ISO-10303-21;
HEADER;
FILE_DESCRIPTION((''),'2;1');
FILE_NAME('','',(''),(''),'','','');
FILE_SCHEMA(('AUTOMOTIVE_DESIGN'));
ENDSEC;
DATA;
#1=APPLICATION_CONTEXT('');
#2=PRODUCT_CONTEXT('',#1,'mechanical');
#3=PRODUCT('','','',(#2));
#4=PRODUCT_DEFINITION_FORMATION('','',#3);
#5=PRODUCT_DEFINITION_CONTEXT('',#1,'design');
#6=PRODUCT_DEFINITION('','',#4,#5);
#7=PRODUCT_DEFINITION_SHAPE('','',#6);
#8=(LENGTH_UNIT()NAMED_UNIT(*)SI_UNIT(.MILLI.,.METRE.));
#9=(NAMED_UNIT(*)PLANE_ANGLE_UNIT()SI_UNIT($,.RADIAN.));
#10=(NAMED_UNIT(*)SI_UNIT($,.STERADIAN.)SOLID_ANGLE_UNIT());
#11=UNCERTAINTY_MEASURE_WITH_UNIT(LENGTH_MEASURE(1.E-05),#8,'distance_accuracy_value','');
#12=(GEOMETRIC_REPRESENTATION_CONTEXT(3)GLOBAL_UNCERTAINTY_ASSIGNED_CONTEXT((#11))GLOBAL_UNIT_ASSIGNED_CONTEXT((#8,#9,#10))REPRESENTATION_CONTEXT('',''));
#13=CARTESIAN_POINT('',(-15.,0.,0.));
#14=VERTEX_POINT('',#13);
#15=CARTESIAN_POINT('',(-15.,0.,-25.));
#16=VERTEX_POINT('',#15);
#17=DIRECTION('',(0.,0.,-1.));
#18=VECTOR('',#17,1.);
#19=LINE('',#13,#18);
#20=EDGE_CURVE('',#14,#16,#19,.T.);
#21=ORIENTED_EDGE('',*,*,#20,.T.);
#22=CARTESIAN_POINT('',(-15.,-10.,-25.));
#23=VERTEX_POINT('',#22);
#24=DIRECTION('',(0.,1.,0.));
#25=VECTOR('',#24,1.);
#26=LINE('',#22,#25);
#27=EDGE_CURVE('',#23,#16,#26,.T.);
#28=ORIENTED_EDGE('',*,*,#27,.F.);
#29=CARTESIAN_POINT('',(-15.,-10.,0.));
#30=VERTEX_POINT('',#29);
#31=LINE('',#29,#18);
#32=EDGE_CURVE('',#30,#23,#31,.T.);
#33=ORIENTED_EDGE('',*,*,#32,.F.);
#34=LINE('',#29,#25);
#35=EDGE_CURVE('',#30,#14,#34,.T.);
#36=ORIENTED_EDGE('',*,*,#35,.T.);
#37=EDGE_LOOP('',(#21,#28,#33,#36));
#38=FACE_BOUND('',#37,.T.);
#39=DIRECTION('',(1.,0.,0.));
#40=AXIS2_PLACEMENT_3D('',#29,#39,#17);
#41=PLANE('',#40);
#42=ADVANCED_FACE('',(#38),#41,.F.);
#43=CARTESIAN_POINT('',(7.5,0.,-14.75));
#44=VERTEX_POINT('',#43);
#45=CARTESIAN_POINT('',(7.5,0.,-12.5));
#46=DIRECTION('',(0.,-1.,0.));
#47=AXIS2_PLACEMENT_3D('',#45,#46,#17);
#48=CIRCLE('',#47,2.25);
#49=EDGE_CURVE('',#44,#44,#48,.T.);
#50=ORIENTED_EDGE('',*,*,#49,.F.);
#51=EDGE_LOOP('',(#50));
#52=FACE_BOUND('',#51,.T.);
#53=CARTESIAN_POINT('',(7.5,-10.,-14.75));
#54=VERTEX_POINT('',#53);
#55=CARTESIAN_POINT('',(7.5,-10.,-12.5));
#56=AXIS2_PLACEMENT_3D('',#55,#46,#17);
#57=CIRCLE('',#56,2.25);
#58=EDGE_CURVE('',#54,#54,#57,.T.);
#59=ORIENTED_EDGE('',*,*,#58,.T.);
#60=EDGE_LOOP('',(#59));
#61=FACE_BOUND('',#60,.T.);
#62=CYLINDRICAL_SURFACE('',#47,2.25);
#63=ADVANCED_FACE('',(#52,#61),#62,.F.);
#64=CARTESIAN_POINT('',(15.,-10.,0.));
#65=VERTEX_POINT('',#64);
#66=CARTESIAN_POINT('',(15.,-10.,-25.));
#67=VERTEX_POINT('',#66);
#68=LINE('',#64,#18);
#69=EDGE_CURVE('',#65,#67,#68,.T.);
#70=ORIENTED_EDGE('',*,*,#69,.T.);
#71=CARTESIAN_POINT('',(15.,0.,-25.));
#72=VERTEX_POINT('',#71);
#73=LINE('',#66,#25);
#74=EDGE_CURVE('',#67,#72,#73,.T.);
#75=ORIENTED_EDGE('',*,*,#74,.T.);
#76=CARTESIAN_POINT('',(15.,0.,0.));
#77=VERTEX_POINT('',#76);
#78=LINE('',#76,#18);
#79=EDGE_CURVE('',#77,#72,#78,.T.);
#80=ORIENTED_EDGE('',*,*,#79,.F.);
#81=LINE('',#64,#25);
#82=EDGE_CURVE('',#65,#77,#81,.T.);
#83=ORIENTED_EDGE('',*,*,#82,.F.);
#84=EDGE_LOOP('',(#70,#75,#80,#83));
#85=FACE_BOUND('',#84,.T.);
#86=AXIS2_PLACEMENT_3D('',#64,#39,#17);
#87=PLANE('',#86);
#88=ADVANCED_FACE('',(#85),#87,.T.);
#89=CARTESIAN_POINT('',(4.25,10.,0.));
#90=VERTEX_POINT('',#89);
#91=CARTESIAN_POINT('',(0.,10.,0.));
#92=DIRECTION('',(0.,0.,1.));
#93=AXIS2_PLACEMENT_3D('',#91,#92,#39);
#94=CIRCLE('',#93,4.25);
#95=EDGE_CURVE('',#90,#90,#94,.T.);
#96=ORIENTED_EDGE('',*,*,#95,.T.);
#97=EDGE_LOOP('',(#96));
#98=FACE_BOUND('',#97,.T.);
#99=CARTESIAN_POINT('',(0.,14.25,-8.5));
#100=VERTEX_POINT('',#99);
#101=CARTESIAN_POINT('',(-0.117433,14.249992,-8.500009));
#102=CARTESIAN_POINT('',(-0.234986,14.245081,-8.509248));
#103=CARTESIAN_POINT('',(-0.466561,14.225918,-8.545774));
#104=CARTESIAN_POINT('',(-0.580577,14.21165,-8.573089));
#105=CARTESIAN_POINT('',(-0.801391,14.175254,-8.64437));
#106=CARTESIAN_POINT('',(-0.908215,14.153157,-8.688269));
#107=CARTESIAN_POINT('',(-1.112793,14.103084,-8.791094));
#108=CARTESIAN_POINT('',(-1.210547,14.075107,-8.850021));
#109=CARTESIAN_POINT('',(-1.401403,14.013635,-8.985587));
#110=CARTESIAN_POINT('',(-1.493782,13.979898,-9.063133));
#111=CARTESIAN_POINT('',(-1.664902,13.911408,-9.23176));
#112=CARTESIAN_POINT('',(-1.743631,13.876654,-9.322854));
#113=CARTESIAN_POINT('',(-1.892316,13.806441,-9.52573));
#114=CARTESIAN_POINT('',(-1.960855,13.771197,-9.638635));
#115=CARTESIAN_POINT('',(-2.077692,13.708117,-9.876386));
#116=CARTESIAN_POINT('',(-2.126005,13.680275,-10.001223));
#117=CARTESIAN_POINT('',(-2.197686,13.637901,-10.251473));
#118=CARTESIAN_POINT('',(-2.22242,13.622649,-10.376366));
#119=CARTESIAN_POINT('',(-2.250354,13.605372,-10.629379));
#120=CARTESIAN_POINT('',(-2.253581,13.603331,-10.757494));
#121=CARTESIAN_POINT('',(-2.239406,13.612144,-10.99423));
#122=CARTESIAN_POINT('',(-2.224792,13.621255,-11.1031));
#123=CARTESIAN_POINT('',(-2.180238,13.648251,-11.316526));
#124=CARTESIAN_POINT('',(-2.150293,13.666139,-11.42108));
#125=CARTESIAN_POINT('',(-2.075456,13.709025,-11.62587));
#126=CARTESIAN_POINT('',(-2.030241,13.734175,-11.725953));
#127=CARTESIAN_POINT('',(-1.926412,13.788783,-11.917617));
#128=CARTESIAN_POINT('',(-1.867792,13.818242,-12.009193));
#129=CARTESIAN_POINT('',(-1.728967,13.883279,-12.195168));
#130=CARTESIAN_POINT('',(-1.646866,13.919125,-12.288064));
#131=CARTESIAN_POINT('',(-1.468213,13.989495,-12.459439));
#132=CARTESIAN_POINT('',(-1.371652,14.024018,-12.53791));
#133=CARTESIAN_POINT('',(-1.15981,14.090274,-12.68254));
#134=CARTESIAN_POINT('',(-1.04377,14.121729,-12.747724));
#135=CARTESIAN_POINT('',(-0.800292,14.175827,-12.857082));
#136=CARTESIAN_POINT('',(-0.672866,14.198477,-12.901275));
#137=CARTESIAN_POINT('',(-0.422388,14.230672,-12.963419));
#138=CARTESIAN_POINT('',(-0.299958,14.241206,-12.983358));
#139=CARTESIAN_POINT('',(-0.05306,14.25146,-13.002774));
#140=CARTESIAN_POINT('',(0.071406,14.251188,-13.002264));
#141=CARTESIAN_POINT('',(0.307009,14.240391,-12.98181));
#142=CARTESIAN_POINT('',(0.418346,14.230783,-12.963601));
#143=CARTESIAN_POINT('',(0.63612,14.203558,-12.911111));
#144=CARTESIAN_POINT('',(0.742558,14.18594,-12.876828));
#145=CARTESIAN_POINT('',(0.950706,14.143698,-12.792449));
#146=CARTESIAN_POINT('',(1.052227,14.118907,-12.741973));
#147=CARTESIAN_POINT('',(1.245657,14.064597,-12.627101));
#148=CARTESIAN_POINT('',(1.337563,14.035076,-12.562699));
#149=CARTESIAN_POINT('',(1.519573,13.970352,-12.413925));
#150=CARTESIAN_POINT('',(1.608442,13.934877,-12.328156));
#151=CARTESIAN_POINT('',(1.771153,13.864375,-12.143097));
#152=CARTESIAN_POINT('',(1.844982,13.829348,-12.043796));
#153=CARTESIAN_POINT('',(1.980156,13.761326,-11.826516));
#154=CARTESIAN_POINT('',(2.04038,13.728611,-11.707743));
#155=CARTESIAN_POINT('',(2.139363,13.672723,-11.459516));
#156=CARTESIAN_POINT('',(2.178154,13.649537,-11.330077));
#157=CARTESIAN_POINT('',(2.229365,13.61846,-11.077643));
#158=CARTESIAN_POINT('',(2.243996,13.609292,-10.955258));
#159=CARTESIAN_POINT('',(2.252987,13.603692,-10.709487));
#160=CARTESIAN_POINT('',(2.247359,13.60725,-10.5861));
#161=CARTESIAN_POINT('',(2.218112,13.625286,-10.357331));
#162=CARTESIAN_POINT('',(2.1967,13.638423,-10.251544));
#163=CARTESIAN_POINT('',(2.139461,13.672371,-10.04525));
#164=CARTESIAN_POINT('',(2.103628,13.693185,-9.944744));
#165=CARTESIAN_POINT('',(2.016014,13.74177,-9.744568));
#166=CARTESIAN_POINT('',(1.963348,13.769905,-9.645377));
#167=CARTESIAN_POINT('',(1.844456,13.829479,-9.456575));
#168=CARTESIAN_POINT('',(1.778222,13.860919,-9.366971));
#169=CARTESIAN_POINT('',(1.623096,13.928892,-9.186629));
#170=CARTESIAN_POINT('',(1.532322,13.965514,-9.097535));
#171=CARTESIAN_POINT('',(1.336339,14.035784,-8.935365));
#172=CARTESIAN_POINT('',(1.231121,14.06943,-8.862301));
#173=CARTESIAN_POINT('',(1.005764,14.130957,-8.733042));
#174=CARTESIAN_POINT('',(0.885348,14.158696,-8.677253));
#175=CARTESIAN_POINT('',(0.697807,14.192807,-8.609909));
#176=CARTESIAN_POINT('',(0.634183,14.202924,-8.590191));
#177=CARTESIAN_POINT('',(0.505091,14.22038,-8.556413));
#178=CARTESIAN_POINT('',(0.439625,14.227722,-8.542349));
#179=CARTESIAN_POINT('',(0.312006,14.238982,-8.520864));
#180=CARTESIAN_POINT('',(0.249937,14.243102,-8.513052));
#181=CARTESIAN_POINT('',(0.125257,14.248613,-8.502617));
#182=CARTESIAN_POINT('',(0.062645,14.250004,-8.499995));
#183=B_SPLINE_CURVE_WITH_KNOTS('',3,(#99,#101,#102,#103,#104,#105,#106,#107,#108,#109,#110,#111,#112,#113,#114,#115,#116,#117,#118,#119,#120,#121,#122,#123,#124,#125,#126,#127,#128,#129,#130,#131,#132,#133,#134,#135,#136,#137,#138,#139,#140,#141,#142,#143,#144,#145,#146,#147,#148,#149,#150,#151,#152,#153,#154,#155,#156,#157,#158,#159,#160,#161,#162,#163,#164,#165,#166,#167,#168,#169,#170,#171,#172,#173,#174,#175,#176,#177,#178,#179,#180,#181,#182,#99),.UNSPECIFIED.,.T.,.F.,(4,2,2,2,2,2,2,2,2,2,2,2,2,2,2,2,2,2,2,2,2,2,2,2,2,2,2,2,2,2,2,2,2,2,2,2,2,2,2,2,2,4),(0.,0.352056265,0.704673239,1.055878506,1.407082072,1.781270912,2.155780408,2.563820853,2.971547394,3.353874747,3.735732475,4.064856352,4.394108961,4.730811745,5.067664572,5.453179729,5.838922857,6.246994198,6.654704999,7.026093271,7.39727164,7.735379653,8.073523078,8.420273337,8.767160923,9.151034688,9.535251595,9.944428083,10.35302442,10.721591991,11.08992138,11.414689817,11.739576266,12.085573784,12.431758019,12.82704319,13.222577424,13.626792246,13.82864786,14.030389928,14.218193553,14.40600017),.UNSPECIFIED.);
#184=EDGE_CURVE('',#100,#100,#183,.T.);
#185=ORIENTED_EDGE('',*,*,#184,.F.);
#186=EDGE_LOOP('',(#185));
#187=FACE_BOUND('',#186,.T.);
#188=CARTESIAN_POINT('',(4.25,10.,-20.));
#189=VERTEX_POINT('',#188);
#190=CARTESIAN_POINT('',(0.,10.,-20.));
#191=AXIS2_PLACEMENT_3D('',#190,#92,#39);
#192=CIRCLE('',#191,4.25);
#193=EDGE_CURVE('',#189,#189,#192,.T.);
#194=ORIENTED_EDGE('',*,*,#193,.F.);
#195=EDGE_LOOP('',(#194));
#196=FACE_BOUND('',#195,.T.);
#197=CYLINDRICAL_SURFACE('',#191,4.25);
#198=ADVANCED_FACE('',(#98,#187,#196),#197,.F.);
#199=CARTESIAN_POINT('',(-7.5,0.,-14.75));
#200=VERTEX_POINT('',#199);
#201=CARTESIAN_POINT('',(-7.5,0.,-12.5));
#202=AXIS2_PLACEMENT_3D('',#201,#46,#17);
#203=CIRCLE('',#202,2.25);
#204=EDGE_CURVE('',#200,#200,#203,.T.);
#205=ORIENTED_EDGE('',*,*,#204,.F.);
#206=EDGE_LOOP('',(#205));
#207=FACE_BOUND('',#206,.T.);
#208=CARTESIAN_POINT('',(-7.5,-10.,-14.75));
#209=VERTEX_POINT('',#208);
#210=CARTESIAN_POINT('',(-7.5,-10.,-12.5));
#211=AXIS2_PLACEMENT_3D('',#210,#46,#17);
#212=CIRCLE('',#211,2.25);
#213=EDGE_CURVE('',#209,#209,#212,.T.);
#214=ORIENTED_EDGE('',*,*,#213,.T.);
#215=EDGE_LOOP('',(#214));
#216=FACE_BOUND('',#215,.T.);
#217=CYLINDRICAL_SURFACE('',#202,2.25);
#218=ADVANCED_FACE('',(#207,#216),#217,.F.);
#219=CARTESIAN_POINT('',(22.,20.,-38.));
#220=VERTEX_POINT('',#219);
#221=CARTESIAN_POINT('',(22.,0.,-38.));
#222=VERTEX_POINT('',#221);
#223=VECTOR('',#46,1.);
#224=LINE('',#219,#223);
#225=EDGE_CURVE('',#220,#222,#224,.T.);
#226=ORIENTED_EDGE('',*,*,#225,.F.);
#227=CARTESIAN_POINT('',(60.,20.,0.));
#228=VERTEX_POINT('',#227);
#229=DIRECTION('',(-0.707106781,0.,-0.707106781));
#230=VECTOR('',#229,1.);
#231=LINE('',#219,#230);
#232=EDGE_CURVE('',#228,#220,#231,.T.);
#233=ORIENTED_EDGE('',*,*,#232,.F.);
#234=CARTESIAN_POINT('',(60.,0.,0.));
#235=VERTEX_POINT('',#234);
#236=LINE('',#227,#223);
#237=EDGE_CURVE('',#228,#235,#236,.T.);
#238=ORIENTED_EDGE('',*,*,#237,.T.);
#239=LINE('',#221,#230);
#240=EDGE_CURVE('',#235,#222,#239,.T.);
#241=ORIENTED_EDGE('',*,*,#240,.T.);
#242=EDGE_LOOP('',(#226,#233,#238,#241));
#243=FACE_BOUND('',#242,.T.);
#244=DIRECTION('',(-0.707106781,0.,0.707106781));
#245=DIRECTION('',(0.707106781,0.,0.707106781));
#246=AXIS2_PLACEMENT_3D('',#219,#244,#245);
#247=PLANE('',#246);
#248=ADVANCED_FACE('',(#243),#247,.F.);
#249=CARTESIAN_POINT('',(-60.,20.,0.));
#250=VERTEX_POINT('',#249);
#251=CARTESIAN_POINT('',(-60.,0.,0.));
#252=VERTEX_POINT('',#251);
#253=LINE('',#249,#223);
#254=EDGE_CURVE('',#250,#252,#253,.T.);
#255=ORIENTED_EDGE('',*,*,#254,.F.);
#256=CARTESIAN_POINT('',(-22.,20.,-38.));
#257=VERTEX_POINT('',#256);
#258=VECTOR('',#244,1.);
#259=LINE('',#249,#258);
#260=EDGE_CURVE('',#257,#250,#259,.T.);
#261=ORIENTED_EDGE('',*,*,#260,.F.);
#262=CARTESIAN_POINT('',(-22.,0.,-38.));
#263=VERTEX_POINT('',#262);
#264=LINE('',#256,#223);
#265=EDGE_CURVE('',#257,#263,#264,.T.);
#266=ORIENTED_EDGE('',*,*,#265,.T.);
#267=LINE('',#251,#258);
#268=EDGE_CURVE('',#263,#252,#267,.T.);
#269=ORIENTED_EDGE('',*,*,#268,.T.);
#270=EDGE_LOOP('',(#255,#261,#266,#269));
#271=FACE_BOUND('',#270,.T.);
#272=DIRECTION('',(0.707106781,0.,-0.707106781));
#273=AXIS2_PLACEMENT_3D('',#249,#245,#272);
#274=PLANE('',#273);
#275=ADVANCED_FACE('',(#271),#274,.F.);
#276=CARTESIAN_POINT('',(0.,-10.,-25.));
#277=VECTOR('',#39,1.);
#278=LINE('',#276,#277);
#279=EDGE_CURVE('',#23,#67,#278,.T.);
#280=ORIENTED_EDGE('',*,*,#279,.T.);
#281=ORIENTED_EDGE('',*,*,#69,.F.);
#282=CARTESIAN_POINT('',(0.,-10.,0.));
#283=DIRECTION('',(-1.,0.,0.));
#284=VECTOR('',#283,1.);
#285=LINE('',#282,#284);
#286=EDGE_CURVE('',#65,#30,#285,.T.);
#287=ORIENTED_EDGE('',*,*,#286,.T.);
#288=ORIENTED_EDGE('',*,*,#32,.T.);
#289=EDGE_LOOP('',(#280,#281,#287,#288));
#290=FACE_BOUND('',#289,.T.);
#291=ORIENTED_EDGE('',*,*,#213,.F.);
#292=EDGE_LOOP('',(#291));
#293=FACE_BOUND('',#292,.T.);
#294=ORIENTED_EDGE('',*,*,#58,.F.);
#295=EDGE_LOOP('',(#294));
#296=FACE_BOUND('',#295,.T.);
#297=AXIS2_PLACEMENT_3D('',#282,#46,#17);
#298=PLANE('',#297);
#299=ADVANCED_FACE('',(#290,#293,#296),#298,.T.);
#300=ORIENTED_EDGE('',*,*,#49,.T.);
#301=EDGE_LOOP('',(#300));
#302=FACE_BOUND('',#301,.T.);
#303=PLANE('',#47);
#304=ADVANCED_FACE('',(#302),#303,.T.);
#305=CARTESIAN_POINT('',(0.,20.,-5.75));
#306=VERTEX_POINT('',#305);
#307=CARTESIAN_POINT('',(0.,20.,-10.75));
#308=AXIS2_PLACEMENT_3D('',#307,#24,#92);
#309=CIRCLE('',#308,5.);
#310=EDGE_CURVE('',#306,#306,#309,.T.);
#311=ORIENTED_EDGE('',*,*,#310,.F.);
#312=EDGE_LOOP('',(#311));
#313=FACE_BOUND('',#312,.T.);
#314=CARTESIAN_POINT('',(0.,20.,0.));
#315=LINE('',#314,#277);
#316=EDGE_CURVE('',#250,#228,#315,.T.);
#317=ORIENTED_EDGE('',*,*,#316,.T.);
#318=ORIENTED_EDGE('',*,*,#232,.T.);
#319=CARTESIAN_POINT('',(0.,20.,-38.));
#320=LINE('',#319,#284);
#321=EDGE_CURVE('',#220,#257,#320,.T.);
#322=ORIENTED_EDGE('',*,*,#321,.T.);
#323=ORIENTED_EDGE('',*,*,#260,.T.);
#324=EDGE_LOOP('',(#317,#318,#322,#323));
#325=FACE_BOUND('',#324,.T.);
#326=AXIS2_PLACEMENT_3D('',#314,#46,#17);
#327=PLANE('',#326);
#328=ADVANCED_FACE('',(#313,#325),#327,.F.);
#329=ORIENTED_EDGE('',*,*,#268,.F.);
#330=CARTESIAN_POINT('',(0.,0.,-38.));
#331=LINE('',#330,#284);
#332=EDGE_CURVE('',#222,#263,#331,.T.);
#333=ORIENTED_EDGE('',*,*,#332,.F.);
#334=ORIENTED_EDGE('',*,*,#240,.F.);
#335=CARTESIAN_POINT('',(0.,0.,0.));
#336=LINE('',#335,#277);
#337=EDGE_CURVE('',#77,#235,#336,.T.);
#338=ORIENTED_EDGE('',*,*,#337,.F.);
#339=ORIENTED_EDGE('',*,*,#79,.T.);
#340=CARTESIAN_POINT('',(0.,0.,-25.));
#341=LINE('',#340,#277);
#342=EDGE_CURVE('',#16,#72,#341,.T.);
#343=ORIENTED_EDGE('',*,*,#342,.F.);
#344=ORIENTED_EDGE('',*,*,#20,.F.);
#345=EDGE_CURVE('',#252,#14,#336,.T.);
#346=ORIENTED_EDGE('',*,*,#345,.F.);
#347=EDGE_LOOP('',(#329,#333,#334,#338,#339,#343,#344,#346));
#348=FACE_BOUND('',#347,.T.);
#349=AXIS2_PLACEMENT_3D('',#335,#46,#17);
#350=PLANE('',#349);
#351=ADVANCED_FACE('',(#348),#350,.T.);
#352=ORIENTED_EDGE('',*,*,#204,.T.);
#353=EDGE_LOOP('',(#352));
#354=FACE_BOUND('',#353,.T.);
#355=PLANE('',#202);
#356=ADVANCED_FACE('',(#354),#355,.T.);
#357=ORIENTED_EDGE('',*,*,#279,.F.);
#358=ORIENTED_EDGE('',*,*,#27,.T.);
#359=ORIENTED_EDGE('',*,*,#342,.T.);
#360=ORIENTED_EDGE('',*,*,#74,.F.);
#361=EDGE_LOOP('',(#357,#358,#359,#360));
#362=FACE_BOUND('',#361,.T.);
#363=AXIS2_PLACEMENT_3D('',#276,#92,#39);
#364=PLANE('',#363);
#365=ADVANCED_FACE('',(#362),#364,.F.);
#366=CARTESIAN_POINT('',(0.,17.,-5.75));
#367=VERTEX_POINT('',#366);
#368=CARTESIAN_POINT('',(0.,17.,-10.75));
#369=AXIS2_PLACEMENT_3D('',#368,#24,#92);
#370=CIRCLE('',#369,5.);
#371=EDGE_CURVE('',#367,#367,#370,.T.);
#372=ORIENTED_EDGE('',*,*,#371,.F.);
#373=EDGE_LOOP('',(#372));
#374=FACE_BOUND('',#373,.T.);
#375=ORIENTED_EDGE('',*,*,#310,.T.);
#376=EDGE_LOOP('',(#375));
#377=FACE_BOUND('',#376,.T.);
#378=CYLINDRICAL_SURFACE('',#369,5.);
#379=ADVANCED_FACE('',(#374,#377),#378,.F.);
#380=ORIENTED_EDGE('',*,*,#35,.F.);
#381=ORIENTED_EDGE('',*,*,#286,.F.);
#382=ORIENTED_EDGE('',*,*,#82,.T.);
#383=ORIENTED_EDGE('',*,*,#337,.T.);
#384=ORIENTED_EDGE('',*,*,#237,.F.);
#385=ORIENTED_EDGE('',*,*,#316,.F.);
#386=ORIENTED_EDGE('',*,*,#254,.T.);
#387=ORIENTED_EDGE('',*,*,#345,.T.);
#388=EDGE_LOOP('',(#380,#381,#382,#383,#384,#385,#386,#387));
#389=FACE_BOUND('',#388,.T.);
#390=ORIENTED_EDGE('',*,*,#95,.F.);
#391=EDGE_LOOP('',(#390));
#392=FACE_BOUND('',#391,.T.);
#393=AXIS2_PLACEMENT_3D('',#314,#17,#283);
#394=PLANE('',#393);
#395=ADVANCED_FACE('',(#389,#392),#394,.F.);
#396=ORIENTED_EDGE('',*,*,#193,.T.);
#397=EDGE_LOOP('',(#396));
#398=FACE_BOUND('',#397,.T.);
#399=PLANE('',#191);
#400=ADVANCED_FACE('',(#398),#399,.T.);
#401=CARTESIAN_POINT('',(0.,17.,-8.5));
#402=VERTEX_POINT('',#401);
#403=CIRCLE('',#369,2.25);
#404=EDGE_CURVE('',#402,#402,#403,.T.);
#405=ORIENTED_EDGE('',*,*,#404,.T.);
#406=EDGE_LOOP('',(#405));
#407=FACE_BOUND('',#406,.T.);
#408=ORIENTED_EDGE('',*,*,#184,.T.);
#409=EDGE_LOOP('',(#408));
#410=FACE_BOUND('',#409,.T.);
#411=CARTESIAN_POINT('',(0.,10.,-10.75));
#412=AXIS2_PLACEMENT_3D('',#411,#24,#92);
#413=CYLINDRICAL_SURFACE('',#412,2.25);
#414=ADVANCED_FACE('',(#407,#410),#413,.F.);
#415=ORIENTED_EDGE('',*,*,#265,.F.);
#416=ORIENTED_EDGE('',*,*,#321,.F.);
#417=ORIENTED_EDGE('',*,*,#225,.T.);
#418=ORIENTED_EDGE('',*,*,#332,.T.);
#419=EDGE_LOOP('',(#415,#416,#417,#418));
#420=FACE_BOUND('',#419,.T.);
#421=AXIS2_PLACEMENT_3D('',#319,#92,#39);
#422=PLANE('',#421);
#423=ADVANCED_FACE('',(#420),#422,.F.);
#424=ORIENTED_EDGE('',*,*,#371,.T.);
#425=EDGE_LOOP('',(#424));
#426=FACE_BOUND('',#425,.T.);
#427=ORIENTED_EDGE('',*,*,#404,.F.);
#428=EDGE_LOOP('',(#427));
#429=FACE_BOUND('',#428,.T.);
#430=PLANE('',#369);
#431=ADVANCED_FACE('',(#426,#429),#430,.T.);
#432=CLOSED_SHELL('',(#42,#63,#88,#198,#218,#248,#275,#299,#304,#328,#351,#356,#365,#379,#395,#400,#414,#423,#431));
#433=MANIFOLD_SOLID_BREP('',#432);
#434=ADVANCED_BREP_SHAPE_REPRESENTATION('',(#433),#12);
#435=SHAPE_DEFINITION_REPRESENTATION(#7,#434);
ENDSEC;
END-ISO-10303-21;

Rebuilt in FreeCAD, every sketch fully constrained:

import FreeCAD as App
import Part
import Sketcher
from FreeCAD import Vector


def add_polygon(sketch, points):
    """Adds a closed chain of lines whose ends are joined by coincident constraints."""
    first, n = sketch.GeometryCount, len(points)
    for a, b in zip(points, points[1:] + points[:1]):
        sketch.addGeometry(Part.LineSegment(App.Vector(*a, 0), App.Vector(*b, 0)), False)
    for i in range(n):
        sketch.addConstraint(Sketcher.Constraint("Coincident", first + i, 2, first + (i + 1) % n, 1))

doc = App.newDocument("Part")
body = doc.addObject("PartDesign::Body", "Body")

# Sketch on XZ plane
sketch1 = body.newObject("Sketcher::SketchObject", "Sketch")
sketch1.AttachmentSupport = (doc.getObject("XZ_Plane"), [""])
sketch1.MapMode = "FlatFace"
add_polygon(sketch1, [(60, 0), (22, -38), (-22, -38), (-60, 0)])  # lines 0-3
sketch1.addConstraint([
    Sketcher.Constraint("Horizontal", 1),
    Sketcher.Constraint("Horizontal", 3),
    Sketcher.Constraint("Symmetric", 2, 2, 3, 2, -1, 1),
    Sketcher.Constraint("Perpendicular", 0, 2),
    Sketcher.Constraint("Equal", 0, 2),
    Sketcher.Constraint("DistanceX", 1, 2, 1, 1, 44.0),
    Sketcher.Constraint("DistanceX", 3, 1, 3, 2, 120.0),
])
pad1 = body.newObject("PartDesign::Pad", "Pad")
pad1.Profile = sketch1
pad1.Length = 20
pad1.Reversed = True

# Sketch on XZ plane
sketch2 = body.newObject("Sketcher::SketchObject", "Sketch001")
sketch2.AttachmentSupport = (doc.getObject("XZ_Plane"), [""])
sketch2.MapMode = "FlatFace"
sketch2.AttachmentOffset = App.Placement(Vector(0, 0, -20), App.Rotation())
sketch2.addGeometry(Part.Circle(Vector(0, -11, 0), Vector(0, 0, 1), 5), False)
sketch2.addConstraint([
    Sketcher.Constraint("PointOnObject", 0, 3, -2),
    Sketcher.Constraint("Diameter", 0, 10.0),
    Sketcher.Constraint("DistanceY", 0, 3, -1, 1, 10.75),
])
pocket1 = body.newObject("PartDesign::Pocket", "Pocket")
pocket1.Profile = sketch2
pocket1.Length = 3
pocket1.Reversed = True

# Sketch on XZ plane
sketch3 = body.newObject("Sketcher::SketchObject", "Sketch002")
sketch3.AttachmentSupport = (doc.getObject("XZ_Plane"), [""])
sketch3.MapMode = "FlatFace"
sketch3.AttachmentOffset = App.Placement(Vector(0, 0, -20), App.Rotation())
sketch3.addGeometry(Part.Circle(Vector(0, -10.8, 0), Vector(0, 0, 1), 2.2), False)
sketch3.addConstraint([
    Sketcher.Constraint("PointOnObject", 0, 3, -2),
    Sketcher.Constraint("Diameter", 0, 4.5),
    Sketcher.Constraint("DistanceY", 0, 3, -1, 1, 10.75),
])
pocket2 = body.newObject("PartDesign::Pocket", "Pocket001")
pocket2.Profile = sketch3
pocket2.Length = 10
pocket2.Reversed = True

# Sketch on XY plane
sketch4 = body.newObject("Sketcher::SketchObject", "Sketch003")
sketch4.AttachmentSupport = (doc.getObject("XY_Plane"), [""])
sketch4.MapMode = "FlatFace"
sketch4.addGeometry(Part.Circle(Vector(0, 10, 0), Vector(0, 0, 1), 4.2), False)
sketch4.addConstraint([
    Sketcher.Constraint("PointOnObject", 0, 3, -2),
    Sketcher.Constraint("Diameter", 0, 8.5),
    Sketcher.Constraint("DistanceY", -1, 1, 0, 3, 10.0),
])
pocket3 = body.newObject("PartDesign::Pocket", "Pocket002")
pocket3.Profile = sketch4
pocket3.Length = 20

# Sketch on XZ plane
sketch5 = body.newObject("Sketcher::SketchObject", "Sketch004")
sketch5.AttachmentSupport = (doc.getObject("XZ_Plane"), [""])
sketch5.MapMode = "FlatFace"
add_polygon(sketch5, [(-15, 0), (-15, -25), (15, -25), (15, 0)])  # lines 0-3
sketch5.addConstraint([
    Sketcher.Constraint("Vertical", 0),
    Sketcher.Constraint("Horizontal", 1),
    Sketcher.Constraint("Vertical", 2),
    Sketcher.Constraint("Horizontal", 3),
    Sketcher.Constraint("Symmetric", 2, 2, 3, 2, -1, 1),
    Sketcher.Constraint("DistanceX", 1, 1, 1, 2, 30.0),
    Sketcher.Constraint("DistanceY", 0, 2, 0, 1, 25.0),
])
pad2 = body.newObject("PartDesign::Pad", "Pad001")
pad2.Profile = sketch5
pad2.Length = 10

# Sketch on XZ plane
sketch6 = body.newObject("Sketcher::SketchObject", "Sketch005")
sketch6.AttachmentSupport = (doc.getObject("XZ_Plane"), [""])
sketch6.MapMode = "FlatFace"
sketch6.AttachmentOffset = App.Placement(Vector(0, 0, 10), App.Rotation())
sketch6.addGeometry([
    Part.Circle(Vector(-7.5, -12.5, 0), Vector(0, 0, 1), 2.2),
    Part.Circle(Vector(7.5, -12.5, 0), Vector(0, 0, 1), 2.2),
], False)
sketch6.addConstraint([
    Sketcher.Constraint("Equal", 0, 1),
    Sketcher.Constraint("Symmetric", 0, 3, 1, 3, -2),
    Sketcher.Constraint("Diameter", 0, 4.5),
    Sketcher.Constraint("DistanceX", 0, 3, 1, 3, 15.0),
    Sketcher.Constraint("DistanceY", 0, 3, -1, 1, 12.5),
])
pocket4 = body.newObject("PartDesign::Pocket", "Pocket003")
pocket4.Profile = sketch6
pocket4.Length = 10

doc.recompute()
